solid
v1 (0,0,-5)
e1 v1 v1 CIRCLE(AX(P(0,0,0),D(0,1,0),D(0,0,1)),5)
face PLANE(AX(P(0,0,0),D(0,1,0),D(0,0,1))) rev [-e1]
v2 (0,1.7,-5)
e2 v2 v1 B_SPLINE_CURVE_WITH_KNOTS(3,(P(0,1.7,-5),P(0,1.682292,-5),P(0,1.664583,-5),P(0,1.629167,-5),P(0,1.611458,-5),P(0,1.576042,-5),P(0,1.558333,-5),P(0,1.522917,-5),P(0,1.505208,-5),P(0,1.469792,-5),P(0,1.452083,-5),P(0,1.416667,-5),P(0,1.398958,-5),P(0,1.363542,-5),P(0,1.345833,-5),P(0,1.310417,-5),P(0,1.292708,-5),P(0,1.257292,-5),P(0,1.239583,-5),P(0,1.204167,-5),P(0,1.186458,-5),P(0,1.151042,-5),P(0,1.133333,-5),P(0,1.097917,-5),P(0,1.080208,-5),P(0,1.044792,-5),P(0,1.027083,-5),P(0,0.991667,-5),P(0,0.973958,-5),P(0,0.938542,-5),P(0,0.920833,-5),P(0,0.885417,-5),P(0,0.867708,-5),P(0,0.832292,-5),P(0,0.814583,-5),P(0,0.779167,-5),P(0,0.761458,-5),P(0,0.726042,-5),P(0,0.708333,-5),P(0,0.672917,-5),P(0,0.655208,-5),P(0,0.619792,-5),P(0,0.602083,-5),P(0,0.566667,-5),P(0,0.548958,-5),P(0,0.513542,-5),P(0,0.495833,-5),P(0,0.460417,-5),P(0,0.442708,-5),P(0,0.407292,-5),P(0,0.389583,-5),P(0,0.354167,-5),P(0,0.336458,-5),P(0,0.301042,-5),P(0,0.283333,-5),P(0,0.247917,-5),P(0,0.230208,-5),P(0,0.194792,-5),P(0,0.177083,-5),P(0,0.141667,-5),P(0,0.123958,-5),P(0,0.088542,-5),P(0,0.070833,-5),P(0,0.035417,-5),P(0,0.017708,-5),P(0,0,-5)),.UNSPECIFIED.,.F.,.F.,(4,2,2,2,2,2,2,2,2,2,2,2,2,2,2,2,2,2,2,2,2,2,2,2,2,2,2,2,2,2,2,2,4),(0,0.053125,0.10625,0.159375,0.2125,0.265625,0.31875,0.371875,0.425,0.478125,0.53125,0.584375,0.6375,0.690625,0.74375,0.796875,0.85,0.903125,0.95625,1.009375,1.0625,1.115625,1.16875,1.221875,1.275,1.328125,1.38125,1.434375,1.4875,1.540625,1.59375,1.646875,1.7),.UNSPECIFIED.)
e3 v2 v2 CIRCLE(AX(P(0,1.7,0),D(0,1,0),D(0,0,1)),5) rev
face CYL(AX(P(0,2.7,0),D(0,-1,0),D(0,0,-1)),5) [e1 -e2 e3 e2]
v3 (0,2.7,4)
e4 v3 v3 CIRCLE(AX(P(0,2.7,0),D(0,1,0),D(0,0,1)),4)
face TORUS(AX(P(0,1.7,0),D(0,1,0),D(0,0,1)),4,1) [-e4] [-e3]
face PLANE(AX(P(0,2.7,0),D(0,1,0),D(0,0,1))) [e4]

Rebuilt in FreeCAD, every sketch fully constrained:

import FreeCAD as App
import Part
import Sketcher


def edges_at(feature, points):
    """Names of the edges that pass closest to the given points."""
    edges = feature.Shape.Edges
    near = lambda p: min(range(len(edges)), key=lambda i: edges[i].distToShape(Part.Vertex(*p))[0])
    return sorted({f"Edge{near(p) + 1}" for p in points})

doc = App.newDocument("Part")
params = doc.addObject("Spreadsheet::Sheet", "Params")
for row, (alias, value) in enumerate([
    ("sketch1_diameter", "10 mm"),
    ("pad1_length", "2.7 mm"),
    ("fillet_radius", "1 mm"),
], start=1):
    params.set(f"A{row}", alias)
    params.set(f"B{row}", "=" + value)
    params.setAlias(f"B{row}", alias)

body = doc.addObject("PartDesign::Body", "Body")

sketch1 = body.newObject("Sketcher::SketchObject", "Sketch")
sketch1.AttachmentSupport = (doc.getObject("XZ_Plane"), [""])
sketch1.MapMode = "FlatFace"
sketch1.addGeometry(Part.Circle(App.Vector(0, 0, 0), App.Vector(0, 0, 1), 5), False)
sketch1.addConstraint(Sketcher.Constraint("Coincident", 0, 3, -1, 1))
sketch1.addConstraint(Sketcher.Constraint("Diameter", 0, 10.0))
sketch1.setExpression("Constraints[1]", "Params.sketch1_diameter")
pad1 = body.newObject("PartDesign::Pad", "Pad")
pad1.Profile = sketch1
pad1.setExpression("Length", "Params.pad1_length")
pad1.Reversed = True
doc.recompute()

fillet = body.newObject("PartDesign::Fillet", "Fillet")
fillet.Base = (pad1, edges_at(pad1, [(0, 2.7, 5)]))
fillet.setExpression("Radius", "Params.fillet_radius")

doc.recompute()
